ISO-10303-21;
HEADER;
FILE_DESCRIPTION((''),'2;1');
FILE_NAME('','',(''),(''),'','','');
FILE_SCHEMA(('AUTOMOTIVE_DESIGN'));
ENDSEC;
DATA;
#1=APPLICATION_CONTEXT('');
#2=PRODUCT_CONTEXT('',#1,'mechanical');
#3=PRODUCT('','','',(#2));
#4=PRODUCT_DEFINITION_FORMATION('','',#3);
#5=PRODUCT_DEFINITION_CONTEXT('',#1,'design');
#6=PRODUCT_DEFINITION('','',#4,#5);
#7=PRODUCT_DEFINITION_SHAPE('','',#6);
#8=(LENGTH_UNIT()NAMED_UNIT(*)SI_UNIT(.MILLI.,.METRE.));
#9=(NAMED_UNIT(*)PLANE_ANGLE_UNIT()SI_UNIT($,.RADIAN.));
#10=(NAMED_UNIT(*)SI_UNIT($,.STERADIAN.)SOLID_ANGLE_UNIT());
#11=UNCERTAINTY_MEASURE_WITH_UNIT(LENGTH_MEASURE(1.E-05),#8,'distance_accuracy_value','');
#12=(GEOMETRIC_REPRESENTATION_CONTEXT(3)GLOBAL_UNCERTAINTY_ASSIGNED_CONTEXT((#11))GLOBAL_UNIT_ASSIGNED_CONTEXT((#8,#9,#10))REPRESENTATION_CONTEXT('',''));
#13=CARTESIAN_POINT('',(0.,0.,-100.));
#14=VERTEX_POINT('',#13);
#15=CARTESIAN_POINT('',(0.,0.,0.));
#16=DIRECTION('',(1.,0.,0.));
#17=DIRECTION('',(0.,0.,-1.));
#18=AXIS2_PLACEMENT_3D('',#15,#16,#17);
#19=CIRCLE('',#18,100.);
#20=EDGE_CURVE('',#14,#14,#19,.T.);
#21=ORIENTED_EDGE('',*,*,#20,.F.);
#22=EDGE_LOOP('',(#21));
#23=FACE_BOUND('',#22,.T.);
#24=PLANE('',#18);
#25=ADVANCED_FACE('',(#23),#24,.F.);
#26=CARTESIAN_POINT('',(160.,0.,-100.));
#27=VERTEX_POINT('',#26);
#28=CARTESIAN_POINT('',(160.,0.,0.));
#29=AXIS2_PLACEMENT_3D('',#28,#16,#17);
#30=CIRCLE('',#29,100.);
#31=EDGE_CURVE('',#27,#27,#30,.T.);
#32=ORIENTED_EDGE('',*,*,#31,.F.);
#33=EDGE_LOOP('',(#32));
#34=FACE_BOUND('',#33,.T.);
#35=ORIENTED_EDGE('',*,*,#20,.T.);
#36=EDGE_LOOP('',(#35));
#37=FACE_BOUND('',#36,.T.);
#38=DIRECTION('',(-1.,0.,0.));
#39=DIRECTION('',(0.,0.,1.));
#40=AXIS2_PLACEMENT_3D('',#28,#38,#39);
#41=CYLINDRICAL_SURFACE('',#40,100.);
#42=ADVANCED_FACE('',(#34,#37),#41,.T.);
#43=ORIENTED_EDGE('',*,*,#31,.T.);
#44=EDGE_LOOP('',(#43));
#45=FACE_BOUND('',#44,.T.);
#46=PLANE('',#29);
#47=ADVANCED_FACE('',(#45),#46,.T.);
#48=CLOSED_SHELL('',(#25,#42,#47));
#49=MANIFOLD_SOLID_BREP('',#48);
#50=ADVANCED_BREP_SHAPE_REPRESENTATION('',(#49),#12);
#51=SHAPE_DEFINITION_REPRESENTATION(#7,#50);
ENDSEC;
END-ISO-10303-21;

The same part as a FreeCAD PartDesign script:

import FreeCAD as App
import Part
import Sketcher

V = App.Vector
Q = App.Units.Quantity

doc = App.newDocument("Part")
body = doc.addObject("PartDesign::Body", "Body")

sketch1 = body.newObject("Sketcher::SketchObject", "Sketch")
sketch1.AttachmentSupport = (doc.getObject("YZ_Plane"), [""])
sketch1.MapMode = "FlatFace"
sketch1.addGeometry(Part.Circle(V(0, 0, 0), V(0, 0, 1), 100), False)
sketch1.addConstraint(Sketcher.Constraint("Coincident", 0, 3, -1, 1))
sketch1.addConstraint(Sketcher.Constraint("Diameter", 0, Q("200 mm")))
pad1 = body.newObject("PartDesign::Pad", "Pad")
pad1.Profile = sketch1
pad1.Length = 160

doc.recompute()
